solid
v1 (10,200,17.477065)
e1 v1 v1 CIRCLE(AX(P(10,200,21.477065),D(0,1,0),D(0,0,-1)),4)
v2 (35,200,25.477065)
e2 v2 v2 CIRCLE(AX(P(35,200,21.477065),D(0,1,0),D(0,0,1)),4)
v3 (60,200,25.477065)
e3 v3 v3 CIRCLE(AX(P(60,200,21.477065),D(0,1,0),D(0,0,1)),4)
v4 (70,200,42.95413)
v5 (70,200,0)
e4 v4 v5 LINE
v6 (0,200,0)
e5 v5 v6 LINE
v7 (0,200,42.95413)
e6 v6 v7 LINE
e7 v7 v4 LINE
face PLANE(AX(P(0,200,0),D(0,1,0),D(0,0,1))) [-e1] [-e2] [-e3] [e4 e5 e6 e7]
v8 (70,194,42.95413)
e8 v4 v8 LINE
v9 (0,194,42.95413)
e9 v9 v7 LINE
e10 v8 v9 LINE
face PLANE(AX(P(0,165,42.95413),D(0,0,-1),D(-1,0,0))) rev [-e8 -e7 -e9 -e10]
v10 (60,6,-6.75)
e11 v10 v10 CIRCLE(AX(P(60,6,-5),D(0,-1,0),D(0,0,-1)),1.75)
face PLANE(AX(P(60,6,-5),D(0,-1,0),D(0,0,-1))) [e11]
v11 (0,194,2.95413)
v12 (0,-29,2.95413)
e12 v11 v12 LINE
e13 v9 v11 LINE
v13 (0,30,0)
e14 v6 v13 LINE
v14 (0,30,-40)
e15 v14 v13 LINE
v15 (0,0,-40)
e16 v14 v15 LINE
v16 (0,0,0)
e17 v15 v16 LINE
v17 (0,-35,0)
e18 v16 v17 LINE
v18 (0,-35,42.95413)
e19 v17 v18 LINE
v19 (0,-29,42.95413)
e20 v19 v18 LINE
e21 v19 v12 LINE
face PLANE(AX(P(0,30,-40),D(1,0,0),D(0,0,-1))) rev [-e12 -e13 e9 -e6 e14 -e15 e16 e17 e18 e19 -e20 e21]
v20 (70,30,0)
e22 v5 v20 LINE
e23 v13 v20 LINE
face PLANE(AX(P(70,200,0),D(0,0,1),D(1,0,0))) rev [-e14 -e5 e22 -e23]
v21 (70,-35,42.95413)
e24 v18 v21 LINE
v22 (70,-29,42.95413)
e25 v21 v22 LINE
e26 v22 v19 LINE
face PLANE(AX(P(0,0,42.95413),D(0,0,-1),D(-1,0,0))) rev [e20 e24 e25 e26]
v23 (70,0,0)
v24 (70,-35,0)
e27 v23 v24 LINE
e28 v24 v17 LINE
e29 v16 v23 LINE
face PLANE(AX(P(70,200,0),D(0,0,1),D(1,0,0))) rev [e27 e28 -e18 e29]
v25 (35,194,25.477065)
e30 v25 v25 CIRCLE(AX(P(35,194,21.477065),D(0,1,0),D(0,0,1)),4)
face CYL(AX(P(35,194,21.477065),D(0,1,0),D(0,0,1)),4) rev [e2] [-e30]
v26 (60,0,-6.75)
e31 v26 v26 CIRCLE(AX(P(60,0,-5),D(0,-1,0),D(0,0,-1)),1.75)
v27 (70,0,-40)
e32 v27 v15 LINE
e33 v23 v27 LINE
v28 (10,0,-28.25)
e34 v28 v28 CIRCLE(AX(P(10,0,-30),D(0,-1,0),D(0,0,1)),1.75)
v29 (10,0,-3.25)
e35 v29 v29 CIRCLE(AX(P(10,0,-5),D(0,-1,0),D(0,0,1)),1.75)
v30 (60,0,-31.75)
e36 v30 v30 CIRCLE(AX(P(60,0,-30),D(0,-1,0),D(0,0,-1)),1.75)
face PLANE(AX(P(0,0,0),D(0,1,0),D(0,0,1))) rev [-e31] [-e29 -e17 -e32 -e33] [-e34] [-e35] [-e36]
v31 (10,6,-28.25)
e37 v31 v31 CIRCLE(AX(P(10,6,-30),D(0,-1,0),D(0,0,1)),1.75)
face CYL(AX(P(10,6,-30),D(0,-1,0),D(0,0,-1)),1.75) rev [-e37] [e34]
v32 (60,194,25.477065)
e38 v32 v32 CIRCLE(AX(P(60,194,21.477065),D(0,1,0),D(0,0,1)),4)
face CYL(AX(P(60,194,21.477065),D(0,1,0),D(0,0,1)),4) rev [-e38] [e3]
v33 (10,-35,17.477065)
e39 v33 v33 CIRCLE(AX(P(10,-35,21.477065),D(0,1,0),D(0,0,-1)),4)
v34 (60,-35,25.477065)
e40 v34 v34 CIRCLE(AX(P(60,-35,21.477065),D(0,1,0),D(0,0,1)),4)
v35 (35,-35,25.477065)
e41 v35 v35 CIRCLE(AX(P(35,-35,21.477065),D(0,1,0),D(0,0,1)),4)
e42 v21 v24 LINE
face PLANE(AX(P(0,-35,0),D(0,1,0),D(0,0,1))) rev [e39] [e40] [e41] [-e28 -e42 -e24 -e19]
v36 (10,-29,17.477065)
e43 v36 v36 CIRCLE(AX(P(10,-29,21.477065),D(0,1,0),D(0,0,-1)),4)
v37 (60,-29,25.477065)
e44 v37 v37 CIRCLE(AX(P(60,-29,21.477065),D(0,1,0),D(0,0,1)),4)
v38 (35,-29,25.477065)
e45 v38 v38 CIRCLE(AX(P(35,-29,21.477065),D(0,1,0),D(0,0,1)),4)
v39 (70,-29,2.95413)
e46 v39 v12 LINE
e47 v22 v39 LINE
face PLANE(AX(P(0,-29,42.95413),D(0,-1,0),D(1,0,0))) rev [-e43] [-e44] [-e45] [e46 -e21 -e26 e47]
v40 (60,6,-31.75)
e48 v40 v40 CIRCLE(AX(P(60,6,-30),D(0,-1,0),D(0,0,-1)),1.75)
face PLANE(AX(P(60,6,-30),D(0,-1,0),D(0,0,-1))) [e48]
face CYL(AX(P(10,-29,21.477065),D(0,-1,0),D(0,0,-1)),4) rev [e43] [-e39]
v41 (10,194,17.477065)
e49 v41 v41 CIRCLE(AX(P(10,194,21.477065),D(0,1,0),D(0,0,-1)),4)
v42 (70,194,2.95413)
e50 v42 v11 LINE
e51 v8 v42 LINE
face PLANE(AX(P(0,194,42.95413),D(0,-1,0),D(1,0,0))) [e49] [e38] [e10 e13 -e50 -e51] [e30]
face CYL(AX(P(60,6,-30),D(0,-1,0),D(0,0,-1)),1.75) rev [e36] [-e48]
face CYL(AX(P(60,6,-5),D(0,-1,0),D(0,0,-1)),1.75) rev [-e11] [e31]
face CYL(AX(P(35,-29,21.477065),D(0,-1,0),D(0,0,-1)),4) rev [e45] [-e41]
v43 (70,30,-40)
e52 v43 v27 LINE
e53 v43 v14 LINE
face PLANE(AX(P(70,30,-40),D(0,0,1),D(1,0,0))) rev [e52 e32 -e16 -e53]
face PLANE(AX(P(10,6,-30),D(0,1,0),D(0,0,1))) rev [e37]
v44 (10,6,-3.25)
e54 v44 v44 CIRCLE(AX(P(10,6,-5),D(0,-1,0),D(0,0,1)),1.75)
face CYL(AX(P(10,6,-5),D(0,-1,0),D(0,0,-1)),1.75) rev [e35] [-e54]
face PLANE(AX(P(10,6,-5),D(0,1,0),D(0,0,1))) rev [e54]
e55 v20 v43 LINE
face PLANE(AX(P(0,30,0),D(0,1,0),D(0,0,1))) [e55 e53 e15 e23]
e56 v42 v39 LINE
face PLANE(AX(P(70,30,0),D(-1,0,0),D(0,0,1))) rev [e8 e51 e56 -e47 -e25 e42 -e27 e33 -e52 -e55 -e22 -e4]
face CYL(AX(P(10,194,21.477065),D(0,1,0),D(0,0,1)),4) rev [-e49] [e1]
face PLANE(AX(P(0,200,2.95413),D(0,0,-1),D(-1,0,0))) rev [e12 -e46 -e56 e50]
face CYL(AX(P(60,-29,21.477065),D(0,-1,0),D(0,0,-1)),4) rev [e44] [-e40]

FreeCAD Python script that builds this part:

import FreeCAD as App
import Part
import Sketcher


def add_polygon(sketch, points):
    """Adds a closed chain of lines whose ends are joined by coincident constraints."""
    first, n = sketch.GeometryCount, len(points)
    for a, b in zip(points, points[1:] + points[:1]):
        sketch.addGeometry(Part.LineSegment(App.Vector(*a, 0), App.Vector(*b, 0)), False)
    for i in range(n):
        sketch.addConstraint(Sketcher.Constraint("Coincident", first + i, 2, first + (i + 1) % n, 1))

doc = App.newDocument("Part")
params = doc.addObject("Spreadsheet::Sheet", "Params")
for row, (alias, value) in enumerate([
    ("sketch1_width", "70 mm"),
    ("sketch1_height", "40 mm"),
    ("pad1_length", "30 mm"),
    ("sketch2_width", "70 mm"),
    ("pad2_length", "200 mm"),
    ("pad2_length2", "35 mm"),
    ("sketch3_width", "70 mm"),
    ("sketch3_height", "6 mm"),
    ("pad3_length", "40 mm"),
    ("sketch4_diameter", "3.5 mm"),
    ("pocket1_length", "6 mm"),
    ("sketch5_diameter", "8 mm"),
    ("pocket2_length", "6 mm"),
], start=1):
    params.set(f"A{row}", alias)
    params.set(f"B{row}", "=" + value)
    params.setAlias(f"B{row}", alias)

body = doc.addObject("PartDesign::Body", "Body")

# Sketch on XZ plane
sketch1 = body.newObject("Sketcher::SketchObject", "Sketch")
sketch1.AttachmentSupport = (doc.getObject("XZ_Plane"), [""])
sketch1.MapMode = "FlatFace"
add_polygon(sketch1, [(0, -40), (0, 0), (70, 0), (70, -40)])  # lines 0-3
sketch1.addConstraint([
    Sketcher.Constraint("Vertical", 0),
    Sketcher.Constraint("Horizontal", 1),
    Sketcher.Constraint("Vertical", 2),
    Sketcher.Constraint("Horizontal", 3),
    Sketcher.Constraint("Coincident", 0, 2, -1, 1),
    Sketcher.Constraint("DistanceX", 1, 1, 1, 2, 70.0),
    Sketcher.Constraint("DistanceY", 0, 1, 0, 2, 40.0),
])
sketch1.setExpression("Constraints[9]", "Params.sketch1_width")
sketch1.setExpression("Constraints[10]", "Params.sketch1_height")
pad1 = body.newObject("PartDesign::Pad", "Pad")
pad1.Profile = sketch1
pad1.setExpression("Length", "Params.pad1_length")
pad1.Reversed = True

# Sketch on XZ plane
sketch2 = body.newObject("Sketcher::SketchObject", "Sketch001")
sketch2.AttachmentSupport = (doc.getObject("XZ_Plane"), [""])
sketch2.MapMode = "FlatFace"
add_polygon(sketch2, [(0, 0), (0, 2.95413), (70, 2.95413), (70, 0)])  # lines 0-3
sketch2.addConstraint([
    Sketcher.Constraint("Vertical", 0),
    Sketcher.Constraint("Horizontal", 1),
    Sketcher.Constraint("Vertical", 2),
    Sketcher.Constraint("Horizontal", 3),
    Sketcher.Constraint("Coincident", 3, 2, -1, 1),
    Sketcher.Constraint("DistanceX", 1, 1, 1, 2, 70.0),
    Sketcher.Constraint("DistanceY", 0, 1, 0, 2, 2.95413),
])
sketch2.setExpression("Constraints[9]", "Params.sketch2_width")
pad2 = body.newObject("PartDesign::Pad", "Pad001")
pad2.Profile = sketch2
pad2.Type = "TwoLengths"
pad2.setExpression("Length", "Params.pad2_length")
pad2.setExpression("Length2", "Params.pad2_length2")
pad2.Reversed = True

# Sketch on XY plane
sketch3 = body.newObject("Sketcher::SketchObject", "Sketch002")
sketch3.AttachmentSupport = (doc.getObject("XY_Plane"), [""])
sketch3.MapMode = "FlatFace"
sketch3.AttachmentOffset = App.Placement(App.Vector(0, 0, 2.95413), App.Rotation())
add_polygon(sketch3, [(0, -29), (0, -35), (70, -35), (70, -29)])  # lines 0-3
sketch3.addConstraint([
    Sketcher.Constraint("Vertical", 0),
    Sketcher.Constraint("Horizontal", 1),
    Sketcher.Constraint("Vertical", 2),
    Sketcher.Constraint("Horizontal", 3),
    Sketcher.Constraint("PointOnObject", 0, 2, -2),
    Sketcher.Constraint("DistanceX", 1, 1, 1, 2, 70.0),
    Sketcher.Constraint("DistanceY", 0, 2, 0, 1, 6.0),
    Sketcher.Constraint("DistanceY", 0, 2, -1, 1, 35.0),
])
sketch3.setExpression("Constraints[9]", "Params.sketch3_width")
sketch3.setExpression("Constraints[10]", "Params.sketch3_height")
pad3 = body.newObject("PartDesign::Pad", "Pad002")
pad3.Profile = sketch3
pad3.setExpression("Length", "Params.pad3_length")
doc.recompute()

datumplane = body.newObject("PartDesign::Plane", "DatumPlane")
datumplane.AttachmentSupport = (doc.getObject("XZ_Plane"), [""])
datumplane.MapMode = "FlatFace"
datumplane.AttachmentOffset = App.Placement(App.Vector(0, 0, -82.5), App.Rotation())
mirrored = body.newObject("PartDesign::Mirrored", "Mirrored")
mirrored.Originals = [pad3]
mirrored.MirrorPlane = (datumplane, [""])
body.Tip = mirrored

# Sketch on XZ plane
sketch4 = body.newObject("Sketcher::SketchObject", "Sketch003")
sketch4.AttachmentSupport = (doc.getObject("XZ_Plane"), [""])
sketch4.MapMode = "FlatFace"
sketch4.addGeometry([
    Part.Circle(App.Vector(60, -5, 0), App.Vector(0, 0, 1), 1.75),
    Part.Circle(App.Vector(10, -5, 0), App.Vector(0, 0, 1), 1.75),
    Part.Circle(App.Vector(60, -30, 0), App.Vector(0, 0, 1), 1.75),
    Part.Circle(App.Vector(10, -30, 0), App.Vector(0, 0, 1), 1.75),
], False)
sketch4.addConstraint([
    Sketcher.Constraint("Equal", 0, 1),
    Sketcher.Constraint("Equal", 1, 2),
    Sketcher.Constraint("Equal", 2, 3),
    Sketcher.Constraint("Horizontal", 0, 3, 1, 3),
    Sketcher.Constraint("Horizontal", 2, 3, 3, 3),
    Sketcher.Constraint("Vertical", 0, 3, 2, 3),
    Sketcher.Constraint("Vertical", 1, 3, 3, 3),
    Sketcher.Constraint("Diameter", 0, 3.5),
    Sketcher.Constraint("DistanceX", -1, 1, 0, 3, 60.0),
    Sketcher.Constraint("DistanceY", 0, 3, -1, 1, 5.0),
    Sketcher.Constraint("DistanceX", -1, 1, 1, 3, 10.0),
    Sketcher.Constraint("DistanceY", 2, 3, -1, 1, 30.0),
])
sketch4.setExpression("Constraints[7]", "Params.sketch4_diameter")
pocket1 = body.newObject("PartDesign::Pocket", "Pocket")
pocket1.Profile = sketch4
pocket1.setExpression("Length", "Params.pocket1_length")

# Sketch on XZ plane
sketch5 = body.newObject("Sketcher::SketchObject", "Sketch004")
sketch5.AttachmentSupport = (doc.getObject("XZ_Plane"), [""])
sketch5.MapMode = "FlatFace"
sketch5.AttachmentOffset = App.Placement(App.Vector(0, 0, -200), App.Rotation())
sketch5.addGeometry([
    Part.Circle(App.Vector(35, 21.477065, 0), App.Vector(0, 0, 1), 4),
    Part.Circle(App.Vector(60, 21.477065, 0), App.Vector(0, 0, 1), 4),
    Part.Circle(App.Vector(10, 21.477065, 0), App.Vector(0, 0, 1), 4),
], False)
sketch5.addConstraint([
    Sketcher.Constraint("Equal", 0, 1),
    Sketcher.Constraint("Equal", 1, 2),
    Sketcher.Constraint("Horizontal", 0, 3, 1, 3),
    Sketcher.Constraint("Horizontal", 1, 3, 2, 3),
    Sketcher.Constraint("Diameter", 0, 8.0),
    Sketcher.Constraint("DistanceX", -1, 1, 0, 3, 35.0),
    Sketcher.Constraint("DistanceX", -1, 1, 1, 3, 60.0),
    Sketcher.Constraint("DistanceX", -1, 1, 2, 3, 10.0),
    Sketcher.Constraint("DistanceY", -1, 1, 0, 3, 21.477065),
])
sketch5.setExpression("Constraints[4]", "Params.sketch5_diameter")
pocket2 = body.newObject("PartDesign::Pocket", "Pocket001")
pocket2.Profile = sketch5
pocket2.setExpression("Length", "Params.pocket2_length")
pocket2.Reversed = True
doc.recompute()

datumplane2 = body.newObject("PartDesign::Plane", "DatumPlane001")
datumplane2.AttachmentSupport = (doc.getObject("XZ_Plane"), [""])
datumplane2.MapMode = "FlatFace"
datumplane2.AttachmentOffset = App.Placement(App.Vector(0, 0, -82.5), App.Rotation())
mirrored2 = body.newObject("PartDesign::Mirrored", "Mirrored001")
mirrored2.Originals = [pocket2]
mirrored2.MirrorPlane = (datumplane2, [""])
body.Tip = mirrored2

doc.recompute()
